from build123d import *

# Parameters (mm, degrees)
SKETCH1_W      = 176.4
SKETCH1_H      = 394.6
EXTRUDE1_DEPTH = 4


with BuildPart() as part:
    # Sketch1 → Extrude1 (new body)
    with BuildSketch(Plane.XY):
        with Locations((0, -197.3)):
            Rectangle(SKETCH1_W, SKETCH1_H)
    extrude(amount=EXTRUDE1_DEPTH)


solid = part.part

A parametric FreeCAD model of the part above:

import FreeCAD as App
import Part
import Sketcher
from FreeCAD import Vector

doc = App.newDocument("Part")
body = doc.addObject("PartDesign::Body", "Body")

# Sketch on XY plane
sketch1 = body.newObject("Sketcher::SketchObject", "Sketch")
sketch1.AttachmentSupport = (doc.getObject("XY_Plane"), [""])
sketch1.MapMode = "FlatFace"
sketch1.addGeometry([
    Part.LineSegment(Vector(-88.2, 0, 0), Vector(-88.2, -394.6, 0)),
    Part.LineSegment(Vector(-88.2, -394.6, 0), Vector(88.2, -394.6, 0)),
    Part.LineSegment(Vector(88.2, -394.6, 0), Vector(88.2, 0, 0)),
    Part.LineSegment(Vector(88.2, 0, 0), Vector(-88.2, 0, 0)),
], False)
sketch1.addConstraint([
    Sketcher.Constraint("Coincident", 0, 2, 1, 1),
    Sketcher.Constraint("Coincident", 1, 2, 2, 1),
    Sketcher.Constraint("Coincident", 2, 2, 3, 1),
    Sketcher.Constraint("Coincident", 3, 2, 0, 1),
    Sketcher.Constraint("Vertical", 0),
    Sketcher.Constraint("Horizontal", 1),
    Sketcher.Constraint("Vertical", 2),
    Sketcher.Constraint("Horizontal", 3),
    Sketcher.Constraint("Symmetric", 2, 2, 3, 2, -1, 1),
    Sketcher.Constraint("DistanceX", 1, 1, 1, 2, 176.4),
    Sketcher.Constraint("DistanceY", 0, 2, 0, 1, 394.6),
])
pad1 = body.newObject("PartDesign::Pad", "Pad")
pad1.Profile = sketch1
pad1.Length = 4

doc.recompute()
